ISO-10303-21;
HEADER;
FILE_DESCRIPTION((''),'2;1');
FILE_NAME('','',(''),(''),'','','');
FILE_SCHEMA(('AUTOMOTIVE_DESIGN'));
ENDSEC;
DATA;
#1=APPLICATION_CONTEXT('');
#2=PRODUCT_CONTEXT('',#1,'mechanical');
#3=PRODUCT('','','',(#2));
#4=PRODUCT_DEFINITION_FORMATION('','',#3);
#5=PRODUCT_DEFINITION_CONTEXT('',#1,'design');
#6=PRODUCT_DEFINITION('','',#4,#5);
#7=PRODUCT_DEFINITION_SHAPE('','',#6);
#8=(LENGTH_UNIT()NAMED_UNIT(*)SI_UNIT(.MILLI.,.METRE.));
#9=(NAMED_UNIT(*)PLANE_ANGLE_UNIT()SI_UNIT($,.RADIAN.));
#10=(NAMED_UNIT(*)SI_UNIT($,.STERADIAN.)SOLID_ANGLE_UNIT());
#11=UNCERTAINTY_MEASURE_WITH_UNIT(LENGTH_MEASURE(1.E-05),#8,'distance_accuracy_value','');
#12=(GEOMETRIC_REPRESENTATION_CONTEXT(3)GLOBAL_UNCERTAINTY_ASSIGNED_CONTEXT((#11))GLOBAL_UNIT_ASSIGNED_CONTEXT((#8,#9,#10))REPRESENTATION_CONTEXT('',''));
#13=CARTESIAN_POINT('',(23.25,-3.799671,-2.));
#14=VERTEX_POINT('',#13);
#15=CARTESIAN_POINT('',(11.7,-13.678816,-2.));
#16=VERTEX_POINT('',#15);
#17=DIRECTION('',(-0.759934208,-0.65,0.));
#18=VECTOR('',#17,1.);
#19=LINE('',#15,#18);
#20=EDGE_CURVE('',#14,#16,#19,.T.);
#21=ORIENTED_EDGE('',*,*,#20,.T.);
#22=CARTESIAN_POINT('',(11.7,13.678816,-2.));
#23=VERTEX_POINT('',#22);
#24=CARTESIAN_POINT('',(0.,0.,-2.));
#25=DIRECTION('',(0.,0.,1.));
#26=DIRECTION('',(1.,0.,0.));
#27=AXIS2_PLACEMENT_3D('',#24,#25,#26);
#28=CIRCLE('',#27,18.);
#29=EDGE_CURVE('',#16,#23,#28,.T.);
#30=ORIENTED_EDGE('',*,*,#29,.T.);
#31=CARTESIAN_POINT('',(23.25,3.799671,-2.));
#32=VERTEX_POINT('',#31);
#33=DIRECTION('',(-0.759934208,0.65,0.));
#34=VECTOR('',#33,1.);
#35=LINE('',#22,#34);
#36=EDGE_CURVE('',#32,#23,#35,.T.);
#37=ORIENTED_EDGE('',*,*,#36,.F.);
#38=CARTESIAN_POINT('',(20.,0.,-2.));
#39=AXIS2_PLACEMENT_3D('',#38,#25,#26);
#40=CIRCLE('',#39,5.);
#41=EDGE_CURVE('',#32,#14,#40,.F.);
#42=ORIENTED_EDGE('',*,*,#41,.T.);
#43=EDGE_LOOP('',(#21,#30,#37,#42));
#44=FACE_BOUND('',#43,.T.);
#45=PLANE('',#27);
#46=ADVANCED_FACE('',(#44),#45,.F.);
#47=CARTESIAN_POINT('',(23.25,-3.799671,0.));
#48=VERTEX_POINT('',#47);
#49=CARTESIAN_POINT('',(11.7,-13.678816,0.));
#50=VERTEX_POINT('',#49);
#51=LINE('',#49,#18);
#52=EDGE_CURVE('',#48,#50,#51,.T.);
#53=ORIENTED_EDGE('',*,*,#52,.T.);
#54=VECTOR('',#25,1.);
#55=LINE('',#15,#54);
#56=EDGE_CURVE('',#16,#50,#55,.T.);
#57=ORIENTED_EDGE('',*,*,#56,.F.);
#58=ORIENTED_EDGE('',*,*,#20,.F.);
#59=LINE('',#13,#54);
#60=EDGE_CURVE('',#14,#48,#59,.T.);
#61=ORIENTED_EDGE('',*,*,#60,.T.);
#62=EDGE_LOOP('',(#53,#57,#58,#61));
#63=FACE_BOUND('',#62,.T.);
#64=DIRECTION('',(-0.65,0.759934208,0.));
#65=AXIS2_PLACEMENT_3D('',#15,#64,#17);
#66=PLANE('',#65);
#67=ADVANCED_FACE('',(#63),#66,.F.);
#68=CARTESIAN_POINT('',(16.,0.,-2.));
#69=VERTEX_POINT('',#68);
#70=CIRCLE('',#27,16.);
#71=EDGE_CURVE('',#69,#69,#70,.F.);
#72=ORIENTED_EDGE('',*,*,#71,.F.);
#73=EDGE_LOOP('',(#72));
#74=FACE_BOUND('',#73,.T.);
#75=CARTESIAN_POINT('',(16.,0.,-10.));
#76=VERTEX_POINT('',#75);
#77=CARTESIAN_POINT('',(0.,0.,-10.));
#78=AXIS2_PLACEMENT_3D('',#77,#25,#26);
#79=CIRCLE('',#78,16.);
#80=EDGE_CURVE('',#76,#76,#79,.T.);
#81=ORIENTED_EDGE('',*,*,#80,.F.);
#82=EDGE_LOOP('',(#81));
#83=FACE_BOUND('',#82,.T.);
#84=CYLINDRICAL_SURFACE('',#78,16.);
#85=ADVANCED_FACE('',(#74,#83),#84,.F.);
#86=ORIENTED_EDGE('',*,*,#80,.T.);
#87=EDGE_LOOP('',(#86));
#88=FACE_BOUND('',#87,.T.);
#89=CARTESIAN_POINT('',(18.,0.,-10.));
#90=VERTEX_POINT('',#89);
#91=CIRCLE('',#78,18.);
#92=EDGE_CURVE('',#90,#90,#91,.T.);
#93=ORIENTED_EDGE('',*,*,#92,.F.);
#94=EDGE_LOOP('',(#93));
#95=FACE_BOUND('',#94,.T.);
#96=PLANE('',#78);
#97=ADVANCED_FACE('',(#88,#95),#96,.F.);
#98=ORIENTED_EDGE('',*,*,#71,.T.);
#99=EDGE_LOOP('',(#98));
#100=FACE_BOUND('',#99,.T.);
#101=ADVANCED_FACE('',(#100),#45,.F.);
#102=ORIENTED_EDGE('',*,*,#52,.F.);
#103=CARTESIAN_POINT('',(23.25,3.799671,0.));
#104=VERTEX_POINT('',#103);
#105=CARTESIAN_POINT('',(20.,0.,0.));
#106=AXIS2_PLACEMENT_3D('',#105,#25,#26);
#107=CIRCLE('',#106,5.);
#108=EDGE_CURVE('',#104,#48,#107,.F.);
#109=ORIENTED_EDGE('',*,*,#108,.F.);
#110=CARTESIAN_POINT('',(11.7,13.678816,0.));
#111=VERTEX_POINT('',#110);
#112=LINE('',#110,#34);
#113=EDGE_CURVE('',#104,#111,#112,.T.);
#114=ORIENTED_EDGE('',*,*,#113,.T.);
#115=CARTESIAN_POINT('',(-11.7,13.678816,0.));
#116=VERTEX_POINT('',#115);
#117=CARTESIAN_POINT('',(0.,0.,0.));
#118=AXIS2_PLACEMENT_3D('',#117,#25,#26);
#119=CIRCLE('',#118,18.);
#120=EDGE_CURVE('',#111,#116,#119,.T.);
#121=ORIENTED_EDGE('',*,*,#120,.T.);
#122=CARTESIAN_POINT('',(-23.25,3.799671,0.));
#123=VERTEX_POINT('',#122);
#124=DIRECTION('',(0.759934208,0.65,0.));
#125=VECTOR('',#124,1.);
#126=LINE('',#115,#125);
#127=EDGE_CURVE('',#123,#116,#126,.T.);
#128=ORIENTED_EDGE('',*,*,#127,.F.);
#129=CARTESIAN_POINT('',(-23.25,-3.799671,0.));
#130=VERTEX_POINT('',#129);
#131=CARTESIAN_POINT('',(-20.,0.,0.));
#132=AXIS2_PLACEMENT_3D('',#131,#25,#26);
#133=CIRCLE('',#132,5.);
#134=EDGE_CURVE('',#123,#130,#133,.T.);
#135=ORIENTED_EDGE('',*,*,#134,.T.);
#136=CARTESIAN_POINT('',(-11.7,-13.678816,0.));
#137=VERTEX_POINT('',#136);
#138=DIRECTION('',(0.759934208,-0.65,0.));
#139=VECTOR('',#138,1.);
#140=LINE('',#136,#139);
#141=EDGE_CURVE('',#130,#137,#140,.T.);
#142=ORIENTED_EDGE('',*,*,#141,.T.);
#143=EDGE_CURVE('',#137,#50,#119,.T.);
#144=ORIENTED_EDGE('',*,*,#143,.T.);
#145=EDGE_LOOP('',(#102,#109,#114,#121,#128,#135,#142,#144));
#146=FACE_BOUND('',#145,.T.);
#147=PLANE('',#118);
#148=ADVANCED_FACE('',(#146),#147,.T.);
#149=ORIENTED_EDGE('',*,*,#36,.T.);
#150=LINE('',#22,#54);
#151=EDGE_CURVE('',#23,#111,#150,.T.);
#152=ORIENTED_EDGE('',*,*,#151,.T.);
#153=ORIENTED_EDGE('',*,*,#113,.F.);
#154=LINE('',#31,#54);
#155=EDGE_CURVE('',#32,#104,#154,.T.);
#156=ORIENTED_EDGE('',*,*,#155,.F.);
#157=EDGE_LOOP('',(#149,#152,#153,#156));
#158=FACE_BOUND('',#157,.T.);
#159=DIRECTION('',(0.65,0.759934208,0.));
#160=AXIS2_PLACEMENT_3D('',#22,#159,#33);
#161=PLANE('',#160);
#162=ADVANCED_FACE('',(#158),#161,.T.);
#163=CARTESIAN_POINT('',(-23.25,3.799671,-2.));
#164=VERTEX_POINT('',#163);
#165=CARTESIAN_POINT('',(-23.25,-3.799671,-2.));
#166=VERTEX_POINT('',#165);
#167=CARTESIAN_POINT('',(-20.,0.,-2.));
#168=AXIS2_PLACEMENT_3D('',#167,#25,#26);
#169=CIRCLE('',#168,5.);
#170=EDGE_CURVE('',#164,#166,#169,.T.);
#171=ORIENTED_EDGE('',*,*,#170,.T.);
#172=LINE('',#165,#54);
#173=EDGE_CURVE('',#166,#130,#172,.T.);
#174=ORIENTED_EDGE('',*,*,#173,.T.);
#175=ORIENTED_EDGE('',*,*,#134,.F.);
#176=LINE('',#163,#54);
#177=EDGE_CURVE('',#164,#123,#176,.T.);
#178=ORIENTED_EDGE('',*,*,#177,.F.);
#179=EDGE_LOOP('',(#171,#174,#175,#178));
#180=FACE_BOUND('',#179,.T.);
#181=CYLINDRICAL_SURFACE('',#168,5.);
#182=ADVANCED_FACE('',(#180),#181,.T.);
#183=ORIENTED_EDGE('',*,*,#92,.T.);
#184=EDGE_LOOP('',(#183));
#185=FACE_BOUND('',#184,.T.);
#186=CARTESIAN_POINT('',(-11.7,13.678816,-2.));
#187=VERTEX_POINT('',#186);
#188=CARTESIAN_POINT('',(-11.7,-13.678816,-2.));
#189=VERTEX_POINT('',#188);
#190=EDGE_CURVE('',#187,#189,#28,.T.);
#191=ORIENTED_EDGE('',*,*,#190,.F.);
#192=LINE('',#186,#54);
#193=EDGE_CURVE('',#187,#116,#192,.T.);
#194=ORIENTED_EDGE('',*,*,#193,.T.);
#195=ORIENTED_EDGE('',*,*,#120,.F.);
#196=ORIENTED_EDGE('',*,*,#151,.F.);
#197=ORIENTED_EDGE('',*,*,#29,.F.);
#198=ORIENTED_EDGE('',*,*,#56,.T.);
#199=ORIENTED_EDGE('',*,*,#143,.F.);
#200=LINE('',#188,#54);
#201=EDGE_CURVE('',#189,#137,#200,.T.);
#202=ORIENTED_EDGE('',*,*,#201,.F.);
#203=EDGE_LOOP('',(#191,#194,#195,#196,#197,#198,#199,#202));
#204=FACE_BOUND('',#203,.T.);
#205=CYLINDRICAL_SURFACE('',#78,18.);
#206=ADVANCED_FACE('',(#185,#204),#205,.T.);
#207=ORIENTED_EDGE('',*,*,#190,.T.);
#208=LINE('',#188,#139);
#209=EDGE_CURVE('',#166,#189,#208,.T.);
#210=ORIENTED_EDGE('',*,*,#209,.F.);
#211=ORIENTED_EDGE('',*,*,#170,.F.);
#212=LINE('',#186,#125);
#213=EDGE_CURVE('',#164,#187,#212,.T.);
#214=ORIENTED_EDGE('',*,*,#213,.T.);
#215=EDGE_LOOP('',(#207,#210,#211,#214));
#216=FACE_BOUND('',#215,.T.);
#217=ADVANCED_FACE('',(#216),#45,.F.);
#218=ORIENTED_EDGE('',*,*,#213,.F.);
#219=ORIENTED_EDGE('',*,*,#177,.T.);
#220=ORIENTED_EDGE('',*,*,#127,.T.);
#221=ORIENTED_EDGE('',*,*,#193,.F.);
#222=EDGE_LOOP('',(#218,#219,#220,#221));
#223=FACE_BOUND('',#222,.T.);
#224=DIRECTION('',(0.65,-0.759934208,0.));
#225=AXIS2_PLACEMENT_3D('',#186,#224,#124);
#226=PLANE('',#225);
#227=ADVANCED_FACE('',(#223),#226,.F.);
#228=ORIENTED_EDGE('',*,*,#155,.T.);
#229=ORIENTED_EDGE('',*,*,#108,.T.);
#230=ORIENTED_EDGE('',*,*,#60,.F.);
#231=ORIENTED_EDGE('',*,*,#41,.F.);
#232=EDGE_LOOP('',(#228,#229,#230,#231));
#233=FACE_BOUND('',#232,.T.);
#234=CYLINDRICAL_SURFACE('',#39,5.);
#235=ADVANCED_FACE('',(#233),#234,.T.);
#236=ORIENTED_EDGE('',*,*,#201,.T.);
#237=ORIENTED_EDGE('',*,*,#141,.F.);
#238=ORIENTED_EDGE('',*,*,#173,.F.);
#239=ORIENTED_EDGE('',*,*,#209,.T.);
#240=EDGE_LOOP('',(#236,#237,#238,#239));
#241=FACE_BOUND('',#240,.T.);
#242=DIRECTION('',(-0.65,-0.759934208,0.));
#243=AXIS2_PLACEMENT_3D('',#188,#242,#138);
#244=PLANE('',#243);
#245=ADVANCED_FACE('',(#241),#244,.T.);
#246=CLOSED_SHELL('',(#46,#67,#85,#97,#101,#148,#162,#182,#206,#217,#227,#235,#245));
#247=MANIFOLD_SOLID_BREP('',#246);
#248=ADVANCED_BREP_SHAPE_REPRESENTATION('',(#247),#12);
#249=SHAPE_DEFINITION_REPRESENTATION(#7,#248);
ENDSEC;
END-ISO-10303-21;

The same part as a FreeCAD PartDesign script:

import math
import FreeCAD as App
import Part
import Sketcher

V = App.Vector
Q = App.Units.Quantity

doc = App.newDocument("Part")
params = doc.addObject("Spreadsheet::Sheet", "Params")
for row, (alias, value) in enumerate([
    ("sketch1_radius", "18 mm"),
    ("sketch1_radius2", "5 mm"),
    ("pad1_length", "2 mm"),
    ("sketch2_radius", "5 mm"),
    ("sketch2_radius2", "18 mm"),
    ("pad2_length", "2 mm"),
    ("sketch3_diameter", "32 mm"),
    ("sketch3_radius", "18 mm"),
    ("pad3_length", "10 mm"),
    ("sketch4_diameter", "32 mm"),
    ("pad4_length", "2 mm"),
], start=1):
    params.set(f"A{row}", alias)
    params.set(f"B{row}", "=" + value)
    params.setAlias(f"B{row}", alias)

body = doc.addObject("PartDesign::Body", "Body")

# Sketch on XY plane
sketch1 = body.newObject("Sketcher::SketchObject", "Sketch")
sketch1.AttachmentSupport = (doc.getObject("XY_Plane"), [""])
sketch1.MapMode = "FlatFace"
sketch1.addGeometry(Part.ArcOfCircle(Part.Circle(V(0, 0, 0), V(0, 0, 1), 18), math.radians(-49), math.radians(49)), False)
sketch1.addGeometry(Part.LineSegment(V(11.7, -13.7, 0), V(23.2, -3.8, 0)), False)
sketch1.addGeometry(Part.ArcOfCircle(Part.Circle(V(20, 0, 0), V(0, 0, 1), 5), math.radians(-49), math.radians(49)), False)
sketch1.addGeometry(Part.LineSegment(V(23.2, 3.8, 0), V(11.7, 13.7, 0)), False)
sketch1.addConstraint(Sketcher.Constraint("Tangent", 0, 1, 1, 1))
sketch1.addConstraint(Sketcher.Constraint("Tangent", 1, 2, 2, 1))
sketch1.addConstraint(Sketcher.Constraint("Tangent", 2, 2, 3, 1))
sketch1.addConstraint(Sketcher.Constraint("Tangent", 3, 2, 0, 2))
sketch1.addConstraint(Sketcher.Constraint("Coincident", 0, 3, -1, 1))
sketch1.addConstraint(Sketcher.Constraint("PointOnObject", 2, 3, -1))
sketch1.addConstraint(Sketcher.Constraint("Radius", 0, Q("18 mm")))
sketch1.addConstraint(Sketcher.Constraint("Radius", 2, Q("5 mm")))
sketch1.addConstraint(Sketcher.Constraint("DistanceX", -1, 1, 2, 3, Q("20 mm")))
sketch1.setExpression("Constraints[6]", "Params.sketch1_radius")
sketch1.setExpression("Constraints[7]", "Params.sketch1_radius2")
pad1 = body.newObject("PartDesign::Pad", "Pad")
pad1.Profile = sketch1
pad1.setExpression("Length", "Params.pad1_length")
pad1.Reversed = True
body2 = doc.addObject("PartDesign::Body", "Body001")

# Sketch on XY plane
sketch2 = body2.newObject("Sketcher::SketchObject", "Sketch001")
sketch2.AttachmentSupport = (doc.getObject("XY_Plane001"), [""])
sketch2.MapMode = "FlatFace"
sketch2.addGeometry(Part.ArcOfCircle(Part.Circle(V(-20, 0, 0), V(0, 0, 1), 5), math.radians(131), math.radians(229)), False)
sketch2.addGeometry(Part.LineSegment(V(-23.2, -3.8, 0), V(-11.7, -13.7, 0)), False)
sketch2.addGeometry(Part.ArcOfCircle(Part.Circle(V(0, 0, 0), V(0, 0, 1), 18), math.radians(131), math.radians(229)), False)
sketch2.addGeometry(Part.LineSegment(V(-11.7, 13.7, 0), V(-23.2, 3.8, 0)), False)
sketch2.addConstraint(Sketcher.Constraint("Tangent", 0, 2, 1, 1))
sketch2.addConstraint(Sketcher.Constraint("Tangent", 1, 2, 2, 2))
sketch2.addConstraint(Sketcher.Constraint("Tangent", 2, 1, 3, 1))
sketch2.addConstraint(Sketcher.Constraint("Tangent", 3, 2, 0, 1))
sketch2.addConstraint(Sketcher.Constraint("Coincident", 2, 3, -1, 1))
sketch2.addConstraint(Sketcher.Constraint("PointOnObject", 0, 3, -1))
sketch2.addConstraint(Sketcher.Constraint("Radius", 0, Q("5 mm")))
sketch2.addConstraint(Sketcher.Constraint("Radius", 2, Q("18 mm")))
sketch2.addConstraint(Sketcher.Constraint("DistanceX", 0, 3, -1, 1, Q("20 mm")))
sketch2.setExpression("Constraints[6]", "Params.sketch2_radius")
sketch2.setExpression("Constraints[7]", "Params.sketch2_radius2")
pad2 = body2.newObject("PartDesign::Pad", "Pad001")
pad2.Profile = sketch2
pad2.setExpression("Length", "Params.pad2_length")
pad2.Reversed = True
body.AllowCompound = True
doc.recompute()

boolean = body.newObject("PartDesign::Boolean", "Boolean")
boolean.Type = "Fuse"
boolean.addObjects([body2])

# Sketch on XY plane
sketch3 = body.newObject("Sketcher::SketchObject", "Sketch002")
sketch3.AttachmentSupport = (doc.getObject("XY_Plane"), [""])
sketch3.MapMode = "FlatFace"
sketch3.addGeometry(Part.ArcOfCircle(Part.Circle(V(0, 0, 0), V(0, 0, 1), 18), math.radians(-49), math.radians(49)), False)
sketch3.addGeometry(Part.ArcOfCircle(Part.Circle(V(0, 0, 0), V(0, 0, 1), 18), math.radians(49), math.radians(90)), False)
sketch3.addGeometry(Part.ArcOfCircle(Part.Circle(V(0, 0, 0), V(0, 0, 1), 18), math.radians(90), math.radians(131)), False)
sketch3.addGeometry(Part.ArcOfCircle(Part.Circle(V(0, 0, 0), V(0, 0, 1), 18), math.radians(131), math.radians(229)), False)
sketch3.addGeometry(Part.ArcOfCircle(Part.Circle(V(0, 0, 0), V(0, 0, 1), 18), math.radians(-131), math.radians(-90)), False)
sketch3.addGeometry(Part.ArcOfCircle(Part.Circle(V(0, 0, 0), V(0, 0, 1), 18), math.radians(-90), math.radians(-49)), False)
sketch3.addGeometry(Part.Circle(V(0, 0, 0), V(0, 0, 1), 16), False)
sketch3.addConstraint(Sketcher.Constraint("Tangent", 0, 2, 1, 1))
sketch3.addConstraint(Sketcher.Constraint("Tangent", 1, 2, 2, 1))
sketch3.addConstraint(Sketcher.Constraint("Tangent", 2, 2, 3, 1))
sketch3.addConstraint(Sketcher.Constraint("Tangent", 3, 2, 4, 1))
sketch3.addConstraint(Sketcher.Constraint("Tangent", 4, 2, 5, 1))
sketch3.addConstraint(Sketcher.Constraint("Tangent", 5, 2, 0, 1))
sketch3.addConstraint(Sketcher.Constraint("Coincident", 0, 3, -1, 1))
sketch3.addConstraint(Sketcher.Constraint("Coincident", 2, 3, -1, 1))
sketch3.addConstraint(Sketcher.Constraint("Coincident", 6, 3, -1, 1))
sketch3.addConstraint(Sketcher.Constraint("Equal", 2, 3))
sketch3.addConstraint(Sketcher.Constraint("PointOnObject", 1, 2, -2))
sketch3.addConstraint(Sketcher.Constraint("PointOnObject", 4, 2, -2))
sketch3.addConstraint(Sketcher.Constraint("Horizontal", 0, 2, 2, 2))
sketch3.addConstraint(Sketcher.Constraint("Horizontal", 3, 2, 5, 2))
sketch3.addConstraint(Sketcher.Constraint("Vertical", 2, 2, 3, 2))
sketch3.addConstraint(Sketcher.Constraint("Diameter", 6, Q("32 mm")))
sketch3.addConstraint(Sketcher.Constraint("Radius", 0, Q("18 mm")))
sketch3.addConstraint(Sketcher.Constraint("DistanceX", -1, 1, 0, 2, Q("11.7 mm")))
sketch3.setExpression("Constraints[15]", "Params.sketch3_diameter")
sketch3.setExpression("Constraints[16]", "Params.sketch3_radius")
pad3 = body.newObject("PartDesign::Pad", "Pad002")
pad3.Profile = sketch3
pad3.setExpression("Length", "Params.pad3_length")
pad3.Reversed = True

# Sketch on XY plane
sketch4 = body.newObject("Sketcher::SketchObject", "Sketch003")
sketch4.AttachmentSupport = (doc.getObject("XY_Plane"), [""])
sketch4.MapMode = "FlatFace"
sketch4.addGeometry(Part.Circle(V(0, 0, 0), V(0, 0, 1), 16), False)
sketch4.addConstraint(Sketcher.Constraint("Coincident", 0, 3, -1, 1))
sketch4.addConstraint(Sketcher.Constraint("Diameter", 0, Q("32 mm")))
sketch4.setExpression("Constraints[1]", "Params.sketch4_diameter")
pad4 = body.newObject("PartDesign::Pad", "Pad003")
pad4.Profile = sketch4
pad4.setExpression("Length", "Params.pad4_length")
pad4.Reversed = True

doc.recompute()
